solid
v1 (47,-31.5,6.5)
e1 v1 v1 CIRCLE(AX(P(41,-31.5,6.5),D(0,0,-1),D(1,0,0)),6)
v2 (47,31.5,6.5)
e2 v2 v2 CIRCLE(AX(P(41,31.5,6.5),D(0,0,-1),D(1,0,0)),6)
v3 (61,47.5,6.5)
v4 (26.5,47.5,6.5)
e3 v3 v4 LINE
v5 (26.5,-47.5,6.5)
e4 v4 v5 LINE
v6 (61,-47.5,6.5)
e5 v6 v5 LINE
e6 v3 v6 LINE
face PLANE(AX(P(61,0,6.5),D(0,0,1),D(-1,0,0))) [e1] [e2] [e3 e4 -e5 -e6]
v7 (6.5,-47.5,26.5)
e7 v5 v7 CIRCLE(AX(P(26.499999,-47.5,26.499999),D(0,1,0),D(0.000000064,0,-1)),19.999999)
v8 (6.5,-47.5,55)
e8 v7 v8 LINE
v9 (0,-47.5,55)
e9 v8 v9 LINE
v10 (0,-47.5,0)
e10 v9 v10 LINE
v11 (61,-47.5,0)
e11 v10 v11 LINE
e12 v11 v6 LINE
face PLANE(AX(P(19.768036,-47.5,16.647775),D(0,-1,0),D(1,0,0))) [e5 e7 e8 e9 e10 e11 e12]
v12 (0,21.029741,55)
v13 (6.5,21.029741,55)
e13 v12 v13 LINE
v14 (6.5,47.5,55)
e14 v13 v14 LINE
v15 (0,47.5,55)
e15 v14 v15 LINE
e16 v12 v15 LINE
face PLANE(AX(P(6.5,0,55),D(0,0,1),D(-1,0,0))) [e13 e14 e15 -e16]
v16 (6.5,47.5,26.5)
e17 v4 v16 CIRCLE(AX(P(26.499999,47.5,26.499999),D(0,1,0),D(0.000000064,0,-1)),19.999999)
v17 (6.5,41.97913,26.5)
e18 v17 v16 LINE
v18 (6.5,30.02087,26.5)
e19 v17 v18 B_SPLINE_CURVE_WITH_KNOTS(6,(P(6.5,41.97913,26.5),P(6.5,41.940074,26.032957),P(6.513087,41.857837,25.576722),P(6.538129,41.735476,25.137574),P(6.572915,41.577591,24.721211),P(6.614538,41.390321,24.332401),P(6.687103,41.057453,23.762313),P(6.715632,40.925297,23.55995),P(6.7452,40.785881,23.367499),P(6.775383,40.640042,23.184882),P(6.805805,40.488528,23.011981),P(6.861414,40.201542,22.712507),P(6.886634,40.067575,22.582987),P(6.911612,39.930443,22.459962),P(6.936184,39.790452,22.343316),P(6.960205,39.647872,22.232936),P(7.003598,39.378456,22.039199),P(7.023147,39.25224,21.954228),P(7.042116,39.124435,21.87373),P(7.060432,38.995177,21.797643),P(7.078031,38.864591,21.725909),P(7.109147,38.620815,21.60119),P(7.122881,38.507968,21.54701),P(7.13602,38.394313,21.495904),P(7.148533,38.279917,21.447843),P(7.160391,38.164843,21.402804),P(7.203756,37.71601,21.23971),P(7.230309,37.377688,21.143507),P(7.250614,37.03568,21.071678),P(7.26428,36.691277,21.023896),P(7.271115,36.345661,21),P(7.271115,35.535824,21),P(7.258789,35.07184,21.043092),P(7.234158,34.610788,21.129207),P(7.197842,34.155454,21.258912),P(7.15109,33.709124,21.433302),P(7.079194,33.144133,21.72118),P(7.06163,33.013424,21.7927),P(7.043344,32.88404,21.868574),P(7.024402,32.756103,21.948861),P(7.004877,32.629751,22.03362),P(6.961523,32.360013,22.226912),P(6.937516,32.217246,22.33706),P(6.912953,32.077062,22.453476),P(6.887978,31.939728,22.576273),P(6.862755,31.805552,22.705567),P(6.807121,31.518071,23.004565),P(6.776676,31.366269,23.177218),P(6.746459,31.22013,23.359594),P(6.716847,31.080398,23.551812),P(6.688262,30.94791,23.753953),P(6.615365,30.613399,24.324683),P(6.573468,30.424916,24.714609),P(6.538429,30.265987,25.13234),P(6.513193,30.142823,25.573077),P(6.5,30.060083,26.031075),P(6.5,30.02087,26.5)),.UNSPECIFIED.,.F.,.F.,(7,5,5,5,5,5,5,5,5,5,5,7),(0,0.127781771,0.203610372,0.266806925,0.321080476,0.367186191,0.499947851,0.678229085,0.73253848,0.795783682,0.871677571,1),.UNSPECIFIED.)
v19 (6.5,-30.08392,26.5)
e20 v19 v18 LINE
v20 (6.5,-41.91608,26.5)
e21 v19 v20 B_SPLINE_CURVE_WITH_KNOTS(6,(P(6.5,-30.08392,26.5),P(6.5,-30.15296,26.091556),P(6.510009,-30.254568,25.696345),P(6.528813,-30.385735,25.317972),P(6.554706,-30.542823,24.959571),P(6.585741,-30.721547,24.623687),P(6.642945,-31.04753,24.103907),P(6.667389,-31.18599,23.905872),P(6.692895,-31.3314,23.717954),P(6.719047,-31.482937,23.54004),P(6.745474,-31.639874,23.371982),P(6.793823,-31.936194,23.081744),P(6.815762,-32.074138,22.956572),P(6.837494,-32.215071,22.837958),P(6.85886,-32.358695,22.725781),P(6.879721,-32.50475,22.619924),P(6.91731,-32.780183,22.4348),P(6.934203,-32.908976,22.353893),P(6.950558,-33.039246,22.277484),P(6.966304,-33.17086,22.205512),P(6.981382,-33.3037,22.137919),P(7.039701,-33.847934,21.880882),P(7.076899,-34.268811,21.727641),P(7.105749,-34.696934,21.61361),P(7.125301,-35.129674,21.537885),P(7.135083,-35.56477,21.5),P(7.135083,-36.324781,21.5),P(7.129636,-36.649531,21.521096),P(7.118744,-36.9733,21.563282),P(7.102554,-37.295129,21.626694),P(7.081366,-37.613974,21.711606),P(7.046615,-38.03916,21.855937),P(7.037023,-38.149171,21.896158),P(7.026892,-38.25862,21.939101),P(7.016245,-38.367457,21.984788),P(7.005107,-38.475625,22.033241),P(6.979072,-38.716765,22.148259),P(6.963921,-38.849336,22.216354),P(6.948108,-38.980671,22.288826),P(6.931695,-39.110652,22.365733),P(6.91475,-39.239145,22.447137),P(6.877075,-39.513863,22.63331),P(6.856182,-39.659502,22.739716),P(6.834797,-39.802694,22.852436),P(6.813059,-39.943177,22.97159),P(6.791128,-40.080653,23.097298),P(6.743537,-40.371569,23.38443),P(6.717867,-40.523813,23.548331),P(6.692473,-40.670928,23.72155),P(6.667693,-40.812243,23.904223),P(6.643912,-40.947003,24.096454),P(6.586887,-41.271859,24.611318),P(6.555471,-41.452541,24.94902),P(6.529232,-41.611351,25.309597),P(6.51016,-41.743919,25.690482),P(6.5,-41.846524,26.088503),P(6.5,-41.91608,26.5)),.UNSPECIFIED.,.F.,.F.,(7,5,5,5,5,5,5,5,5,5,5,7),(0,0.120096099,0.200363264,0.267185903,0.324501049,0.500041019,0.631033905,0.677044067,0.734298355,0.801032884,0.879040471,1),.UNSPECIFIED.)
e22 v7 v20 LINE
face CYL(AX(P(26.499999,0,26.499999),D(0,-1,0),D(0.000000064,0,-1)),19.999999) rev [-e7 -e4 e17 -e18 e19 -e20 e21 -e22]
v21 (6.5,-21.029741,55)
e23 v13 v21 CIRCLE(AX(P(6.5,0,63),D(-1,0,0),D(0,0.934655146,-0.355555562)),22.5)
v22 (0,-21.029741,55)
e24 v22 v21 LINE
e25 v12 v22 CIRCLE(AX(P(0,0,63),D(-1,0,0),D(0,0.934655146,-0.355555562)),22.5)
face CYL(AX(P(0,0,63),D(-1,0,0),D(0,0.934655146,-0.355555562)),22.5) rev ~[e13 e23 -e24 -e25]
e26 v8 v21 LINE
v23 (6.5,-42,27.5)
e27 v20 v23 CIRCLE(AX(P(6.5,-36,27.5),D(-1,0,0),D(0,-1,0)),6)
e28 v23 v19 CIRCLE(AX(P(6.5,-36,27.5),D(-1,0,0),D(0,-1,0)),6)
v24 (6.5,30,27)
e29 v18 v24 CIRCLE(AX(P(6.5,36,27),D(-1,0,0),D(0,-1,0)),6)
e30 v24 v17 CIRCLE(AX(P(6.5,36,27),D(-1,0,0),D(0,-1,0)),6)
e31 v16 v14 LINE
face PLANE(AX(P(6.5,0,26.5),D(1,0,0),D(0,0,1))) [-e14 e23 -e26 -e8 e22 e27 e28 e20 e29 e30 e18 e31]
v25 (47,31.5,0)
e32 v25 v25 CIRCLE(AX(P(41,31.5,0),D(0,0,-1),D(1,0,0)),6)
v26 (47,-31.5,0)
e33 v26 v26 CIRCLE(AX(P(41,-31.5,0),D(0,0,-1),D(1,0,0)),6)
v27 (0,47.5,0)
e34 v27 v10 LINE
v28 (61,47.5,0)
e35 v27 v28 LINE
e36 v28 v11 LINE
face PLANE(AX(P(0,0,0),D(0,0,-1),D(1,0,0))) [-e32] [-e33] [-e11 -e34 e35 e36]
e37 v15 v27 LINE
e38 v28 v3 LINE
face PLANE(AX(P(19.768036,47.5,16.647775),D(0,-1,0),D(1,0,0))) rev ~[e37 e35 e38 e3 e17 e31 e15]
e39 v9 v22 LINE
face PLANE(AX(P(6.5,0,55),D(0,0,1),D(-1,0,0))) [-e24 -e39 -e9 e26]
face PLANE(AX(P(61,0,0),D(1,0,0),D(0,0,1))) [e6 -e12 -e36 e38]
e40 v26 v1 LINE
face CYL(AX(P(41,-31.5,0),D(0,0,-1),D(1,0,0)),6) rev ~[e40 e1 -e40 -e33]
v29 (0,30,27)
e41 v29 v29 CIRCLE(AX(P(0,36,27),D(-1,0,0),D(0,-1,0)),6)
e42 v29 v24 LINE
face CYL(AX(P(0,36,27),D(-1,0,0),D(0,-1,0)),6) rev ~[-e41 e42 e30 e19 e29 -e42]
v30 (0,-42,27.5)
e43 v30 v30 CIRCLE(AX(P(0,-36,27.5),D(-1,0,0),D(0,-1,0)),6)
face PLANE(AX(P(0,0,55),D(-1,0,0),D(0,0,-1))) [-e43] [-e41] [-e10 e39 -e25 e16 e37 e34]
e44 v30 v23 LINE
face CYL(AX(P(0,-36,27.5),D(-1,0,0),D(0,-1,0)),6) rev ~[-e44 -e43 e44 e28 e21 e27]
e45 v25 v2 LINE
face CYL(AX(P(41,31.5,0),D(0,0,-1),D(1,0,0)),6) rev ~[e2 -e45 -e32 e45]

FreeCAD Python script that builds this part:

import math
import FreeCAD as App
import Part
import Sketcher

doc = App.newDocument("Part")
body = doc.addObject("PartDesign::Body", "Body")

# Sketch on XZ plane
sketch1 = body.newObject("Sketcher::SketchObject", "Sketch")
sketch1.AttachmentSupport = (doc.getObject("XZ_Plane"), [""])
sketch1.MapMode = "FlatFace"
sketch1.addGeometry([
    Part.LineSegment(App.Vector(0, 55, 0), App.Vector(0, 0, 0)),  # 0
    Part.LineSegment(App.Vector(0, 0, 0), App.Vector(61, 0, 0)),  # 1
    Part.LineSegment(App.Vector(61, 0, 0), App.Vector(61, 6.5, 0)),  # 2
    Part.LineSegment(App.Vector(61, 6.5, 0), App.Vector(26.5, 6.5, 0)),  # 3
    Part.ArcOfCircle(Part.Circle(App.Vector(26.499999, 26.499999, 0), App.Vector(0, 0, 1), 19.999999), math.radians(179.999996), math.radians(270.000004)),  # 4
    Part.LineSegment(App.Vector(6.5, 26.5, 0), App.Vector(6.5, 55, 0)),  # 5
    Part.LineSegment(App.Vector(6.5, 55, 0), App.Vector(0, 55, 0)),  # 6
], False)
sketch1.addConstraint([
    Sketcher.Constraint("Coincident", 0, 2, 1, 1),
    Sketcher.Constraint("Coincident", 1, 2, 2, 1),
    Sketcher.Constraint("Coincident", 2, 2, 3, 1),
    Sketcher.Constraint("Tangent", 3, 2, 4, 2),
    Sketcher.Constraint("Tangent", 4, 1, 5, 1),
    Sketcher.Constraint("Coincident", 5, 2, 6, 1),
    Sketcher.Constraint("Coincident", 6, 2, 0, 1),
    Sketcher.Constraint("Vertical", 0),
    Sketcher.Constraint("Horizontal", 1),
    Sketcher.Constraint("Vertical", 2),
    Sketcher.Constraint("Horizontal", 3),
    Sketcher.Constraint("Vertical", 5),
    Sketcher.Constraint("Horizontal", 6),
    Sketcher.Constraint("Coincident", 0, 2, -1, 1),
    Sketcher.Constraint("Equal", 6, 2),
    Sketcher.Constraint("Radius", 4, 19.999999),
    Sketcher.Constraint("DistanceX", 1, 1, 1, 2, 61.0),
    Sketcher.Constraint("DistanceY", 0, 2, 0, 1, 55.0),
    Sketcher.Constraint("DistanceX", 3, 2, 3, 1, 34.5),
])
pad1 = body.newObject("PartDesign::Pad", "Pad")
pad1.Profile = sketch1
pad1.Length = 95
pad1.Midplane = True

# Sketch on XY plane
sketch2 = body.newObject("Sketcher::SketchObject", "Sketch001")
sketch2.AttachmentSupport = (doc.getObject("XY_Plane"), [""])
sketch2.MapMode = "FlatFace"
sketch2.addGeometry([
    Part.Circle(App.Vector(41, -31.5, 0), App.Vector(0, 0, 1), 6),
    Part.Circle(App.Vector(41, 31.5, 0), App.Vector(0, 0, 1), 6),
], False)
sketch2.addConstraint([
    Sketcher.Constraint("Equal", 0, 1),
    Sketcher.Constraint("Symmetric", 0, 3, 1, 3, -1),
    Sketcher.Constraint("Diameter", 0, 12.0),
    Sketcher.Constraint("DistanceX", -1, 1, 0, 3, 41.0),
    Sketcher.Constraint("DistanceY", 0, 3, 1, 3, 63.0),
])
pocket1 = body.newObject("PartDesign::Pocket", "Pocket")
pocket1.Profile = sketch2
pocket1.Type = "ThroughAll"
pocket1.Reversed = True

# Sketch on YZ plane
sketch3 = body.newObject("Sketcher::SketchObject", "Sketch002")
sketch3.AttachmentSupport = (doc.getObject("YZ_Plane"), [""])
sketch3.MapMode = "FlatFace"
sketch3.addGeometry([
    Part.Circle(App.Vector(36, 27, 0), App.Vector(0, 0, 1), 6),
    Part.Circle(App.Vector(-36, 27.5, 0), App.Vector(0, 0, 1), 6),
    Part.LineSegment(App.Vector(-21.029741, 55, 0), App.Vector(21.029741, 55, 0)),
    Part.ArcOfCircle(Part.Circle(App.Vector(0, 63, 0), App.Vector(0, 0, 1), 22.5), math.radians(-159.172503), math.radians(-20.827497)),
], False)
sketch3.addConstraint([
    Sketcher.Constraint("Coincident", 2, 1, 3, 1),
    Sketcher.Constraint("Coincident", 3, 2, 2, 2),
    Sketcher.Constraint("Horizontal", 2),
    Sketcher.Constraint("Equal", 0, 1),
    Sketcher.Constraint("PointOnObject", 3, 3, -2),
    Sketcher.Constraint("Diameter", 0, 12.0),
    Sketcher.Constraint("Radius", 3, 22.5),
    Sketcher.Constraint("DistanceX", -1, 1, 0, 3, 36.0),
    Sketcher.Constraint("DistanceY", -1, 1, 0, 3, 27.0),
    Sketcher.Constraint("DistanceX", 1, 3, -1, 1, 36.0),
    Sketcher.Constraint("DistanceY", -1, 1, 3, 3, 63.0),
    Sketcher.Constraint("DistanceY", -1, 1, 2, 1, 55.0),
    Sketcher.Constraint("DistanceY", -1, 1, 1, 3, 27.5),
])
pocket2 = body.newObject("PartDesign::Pocket", "Pocket001")
pocket2.Profile = sketch3
pocket2.Type = "ThroughAll"
pocket2.Reversed = True

doc.recompute()
